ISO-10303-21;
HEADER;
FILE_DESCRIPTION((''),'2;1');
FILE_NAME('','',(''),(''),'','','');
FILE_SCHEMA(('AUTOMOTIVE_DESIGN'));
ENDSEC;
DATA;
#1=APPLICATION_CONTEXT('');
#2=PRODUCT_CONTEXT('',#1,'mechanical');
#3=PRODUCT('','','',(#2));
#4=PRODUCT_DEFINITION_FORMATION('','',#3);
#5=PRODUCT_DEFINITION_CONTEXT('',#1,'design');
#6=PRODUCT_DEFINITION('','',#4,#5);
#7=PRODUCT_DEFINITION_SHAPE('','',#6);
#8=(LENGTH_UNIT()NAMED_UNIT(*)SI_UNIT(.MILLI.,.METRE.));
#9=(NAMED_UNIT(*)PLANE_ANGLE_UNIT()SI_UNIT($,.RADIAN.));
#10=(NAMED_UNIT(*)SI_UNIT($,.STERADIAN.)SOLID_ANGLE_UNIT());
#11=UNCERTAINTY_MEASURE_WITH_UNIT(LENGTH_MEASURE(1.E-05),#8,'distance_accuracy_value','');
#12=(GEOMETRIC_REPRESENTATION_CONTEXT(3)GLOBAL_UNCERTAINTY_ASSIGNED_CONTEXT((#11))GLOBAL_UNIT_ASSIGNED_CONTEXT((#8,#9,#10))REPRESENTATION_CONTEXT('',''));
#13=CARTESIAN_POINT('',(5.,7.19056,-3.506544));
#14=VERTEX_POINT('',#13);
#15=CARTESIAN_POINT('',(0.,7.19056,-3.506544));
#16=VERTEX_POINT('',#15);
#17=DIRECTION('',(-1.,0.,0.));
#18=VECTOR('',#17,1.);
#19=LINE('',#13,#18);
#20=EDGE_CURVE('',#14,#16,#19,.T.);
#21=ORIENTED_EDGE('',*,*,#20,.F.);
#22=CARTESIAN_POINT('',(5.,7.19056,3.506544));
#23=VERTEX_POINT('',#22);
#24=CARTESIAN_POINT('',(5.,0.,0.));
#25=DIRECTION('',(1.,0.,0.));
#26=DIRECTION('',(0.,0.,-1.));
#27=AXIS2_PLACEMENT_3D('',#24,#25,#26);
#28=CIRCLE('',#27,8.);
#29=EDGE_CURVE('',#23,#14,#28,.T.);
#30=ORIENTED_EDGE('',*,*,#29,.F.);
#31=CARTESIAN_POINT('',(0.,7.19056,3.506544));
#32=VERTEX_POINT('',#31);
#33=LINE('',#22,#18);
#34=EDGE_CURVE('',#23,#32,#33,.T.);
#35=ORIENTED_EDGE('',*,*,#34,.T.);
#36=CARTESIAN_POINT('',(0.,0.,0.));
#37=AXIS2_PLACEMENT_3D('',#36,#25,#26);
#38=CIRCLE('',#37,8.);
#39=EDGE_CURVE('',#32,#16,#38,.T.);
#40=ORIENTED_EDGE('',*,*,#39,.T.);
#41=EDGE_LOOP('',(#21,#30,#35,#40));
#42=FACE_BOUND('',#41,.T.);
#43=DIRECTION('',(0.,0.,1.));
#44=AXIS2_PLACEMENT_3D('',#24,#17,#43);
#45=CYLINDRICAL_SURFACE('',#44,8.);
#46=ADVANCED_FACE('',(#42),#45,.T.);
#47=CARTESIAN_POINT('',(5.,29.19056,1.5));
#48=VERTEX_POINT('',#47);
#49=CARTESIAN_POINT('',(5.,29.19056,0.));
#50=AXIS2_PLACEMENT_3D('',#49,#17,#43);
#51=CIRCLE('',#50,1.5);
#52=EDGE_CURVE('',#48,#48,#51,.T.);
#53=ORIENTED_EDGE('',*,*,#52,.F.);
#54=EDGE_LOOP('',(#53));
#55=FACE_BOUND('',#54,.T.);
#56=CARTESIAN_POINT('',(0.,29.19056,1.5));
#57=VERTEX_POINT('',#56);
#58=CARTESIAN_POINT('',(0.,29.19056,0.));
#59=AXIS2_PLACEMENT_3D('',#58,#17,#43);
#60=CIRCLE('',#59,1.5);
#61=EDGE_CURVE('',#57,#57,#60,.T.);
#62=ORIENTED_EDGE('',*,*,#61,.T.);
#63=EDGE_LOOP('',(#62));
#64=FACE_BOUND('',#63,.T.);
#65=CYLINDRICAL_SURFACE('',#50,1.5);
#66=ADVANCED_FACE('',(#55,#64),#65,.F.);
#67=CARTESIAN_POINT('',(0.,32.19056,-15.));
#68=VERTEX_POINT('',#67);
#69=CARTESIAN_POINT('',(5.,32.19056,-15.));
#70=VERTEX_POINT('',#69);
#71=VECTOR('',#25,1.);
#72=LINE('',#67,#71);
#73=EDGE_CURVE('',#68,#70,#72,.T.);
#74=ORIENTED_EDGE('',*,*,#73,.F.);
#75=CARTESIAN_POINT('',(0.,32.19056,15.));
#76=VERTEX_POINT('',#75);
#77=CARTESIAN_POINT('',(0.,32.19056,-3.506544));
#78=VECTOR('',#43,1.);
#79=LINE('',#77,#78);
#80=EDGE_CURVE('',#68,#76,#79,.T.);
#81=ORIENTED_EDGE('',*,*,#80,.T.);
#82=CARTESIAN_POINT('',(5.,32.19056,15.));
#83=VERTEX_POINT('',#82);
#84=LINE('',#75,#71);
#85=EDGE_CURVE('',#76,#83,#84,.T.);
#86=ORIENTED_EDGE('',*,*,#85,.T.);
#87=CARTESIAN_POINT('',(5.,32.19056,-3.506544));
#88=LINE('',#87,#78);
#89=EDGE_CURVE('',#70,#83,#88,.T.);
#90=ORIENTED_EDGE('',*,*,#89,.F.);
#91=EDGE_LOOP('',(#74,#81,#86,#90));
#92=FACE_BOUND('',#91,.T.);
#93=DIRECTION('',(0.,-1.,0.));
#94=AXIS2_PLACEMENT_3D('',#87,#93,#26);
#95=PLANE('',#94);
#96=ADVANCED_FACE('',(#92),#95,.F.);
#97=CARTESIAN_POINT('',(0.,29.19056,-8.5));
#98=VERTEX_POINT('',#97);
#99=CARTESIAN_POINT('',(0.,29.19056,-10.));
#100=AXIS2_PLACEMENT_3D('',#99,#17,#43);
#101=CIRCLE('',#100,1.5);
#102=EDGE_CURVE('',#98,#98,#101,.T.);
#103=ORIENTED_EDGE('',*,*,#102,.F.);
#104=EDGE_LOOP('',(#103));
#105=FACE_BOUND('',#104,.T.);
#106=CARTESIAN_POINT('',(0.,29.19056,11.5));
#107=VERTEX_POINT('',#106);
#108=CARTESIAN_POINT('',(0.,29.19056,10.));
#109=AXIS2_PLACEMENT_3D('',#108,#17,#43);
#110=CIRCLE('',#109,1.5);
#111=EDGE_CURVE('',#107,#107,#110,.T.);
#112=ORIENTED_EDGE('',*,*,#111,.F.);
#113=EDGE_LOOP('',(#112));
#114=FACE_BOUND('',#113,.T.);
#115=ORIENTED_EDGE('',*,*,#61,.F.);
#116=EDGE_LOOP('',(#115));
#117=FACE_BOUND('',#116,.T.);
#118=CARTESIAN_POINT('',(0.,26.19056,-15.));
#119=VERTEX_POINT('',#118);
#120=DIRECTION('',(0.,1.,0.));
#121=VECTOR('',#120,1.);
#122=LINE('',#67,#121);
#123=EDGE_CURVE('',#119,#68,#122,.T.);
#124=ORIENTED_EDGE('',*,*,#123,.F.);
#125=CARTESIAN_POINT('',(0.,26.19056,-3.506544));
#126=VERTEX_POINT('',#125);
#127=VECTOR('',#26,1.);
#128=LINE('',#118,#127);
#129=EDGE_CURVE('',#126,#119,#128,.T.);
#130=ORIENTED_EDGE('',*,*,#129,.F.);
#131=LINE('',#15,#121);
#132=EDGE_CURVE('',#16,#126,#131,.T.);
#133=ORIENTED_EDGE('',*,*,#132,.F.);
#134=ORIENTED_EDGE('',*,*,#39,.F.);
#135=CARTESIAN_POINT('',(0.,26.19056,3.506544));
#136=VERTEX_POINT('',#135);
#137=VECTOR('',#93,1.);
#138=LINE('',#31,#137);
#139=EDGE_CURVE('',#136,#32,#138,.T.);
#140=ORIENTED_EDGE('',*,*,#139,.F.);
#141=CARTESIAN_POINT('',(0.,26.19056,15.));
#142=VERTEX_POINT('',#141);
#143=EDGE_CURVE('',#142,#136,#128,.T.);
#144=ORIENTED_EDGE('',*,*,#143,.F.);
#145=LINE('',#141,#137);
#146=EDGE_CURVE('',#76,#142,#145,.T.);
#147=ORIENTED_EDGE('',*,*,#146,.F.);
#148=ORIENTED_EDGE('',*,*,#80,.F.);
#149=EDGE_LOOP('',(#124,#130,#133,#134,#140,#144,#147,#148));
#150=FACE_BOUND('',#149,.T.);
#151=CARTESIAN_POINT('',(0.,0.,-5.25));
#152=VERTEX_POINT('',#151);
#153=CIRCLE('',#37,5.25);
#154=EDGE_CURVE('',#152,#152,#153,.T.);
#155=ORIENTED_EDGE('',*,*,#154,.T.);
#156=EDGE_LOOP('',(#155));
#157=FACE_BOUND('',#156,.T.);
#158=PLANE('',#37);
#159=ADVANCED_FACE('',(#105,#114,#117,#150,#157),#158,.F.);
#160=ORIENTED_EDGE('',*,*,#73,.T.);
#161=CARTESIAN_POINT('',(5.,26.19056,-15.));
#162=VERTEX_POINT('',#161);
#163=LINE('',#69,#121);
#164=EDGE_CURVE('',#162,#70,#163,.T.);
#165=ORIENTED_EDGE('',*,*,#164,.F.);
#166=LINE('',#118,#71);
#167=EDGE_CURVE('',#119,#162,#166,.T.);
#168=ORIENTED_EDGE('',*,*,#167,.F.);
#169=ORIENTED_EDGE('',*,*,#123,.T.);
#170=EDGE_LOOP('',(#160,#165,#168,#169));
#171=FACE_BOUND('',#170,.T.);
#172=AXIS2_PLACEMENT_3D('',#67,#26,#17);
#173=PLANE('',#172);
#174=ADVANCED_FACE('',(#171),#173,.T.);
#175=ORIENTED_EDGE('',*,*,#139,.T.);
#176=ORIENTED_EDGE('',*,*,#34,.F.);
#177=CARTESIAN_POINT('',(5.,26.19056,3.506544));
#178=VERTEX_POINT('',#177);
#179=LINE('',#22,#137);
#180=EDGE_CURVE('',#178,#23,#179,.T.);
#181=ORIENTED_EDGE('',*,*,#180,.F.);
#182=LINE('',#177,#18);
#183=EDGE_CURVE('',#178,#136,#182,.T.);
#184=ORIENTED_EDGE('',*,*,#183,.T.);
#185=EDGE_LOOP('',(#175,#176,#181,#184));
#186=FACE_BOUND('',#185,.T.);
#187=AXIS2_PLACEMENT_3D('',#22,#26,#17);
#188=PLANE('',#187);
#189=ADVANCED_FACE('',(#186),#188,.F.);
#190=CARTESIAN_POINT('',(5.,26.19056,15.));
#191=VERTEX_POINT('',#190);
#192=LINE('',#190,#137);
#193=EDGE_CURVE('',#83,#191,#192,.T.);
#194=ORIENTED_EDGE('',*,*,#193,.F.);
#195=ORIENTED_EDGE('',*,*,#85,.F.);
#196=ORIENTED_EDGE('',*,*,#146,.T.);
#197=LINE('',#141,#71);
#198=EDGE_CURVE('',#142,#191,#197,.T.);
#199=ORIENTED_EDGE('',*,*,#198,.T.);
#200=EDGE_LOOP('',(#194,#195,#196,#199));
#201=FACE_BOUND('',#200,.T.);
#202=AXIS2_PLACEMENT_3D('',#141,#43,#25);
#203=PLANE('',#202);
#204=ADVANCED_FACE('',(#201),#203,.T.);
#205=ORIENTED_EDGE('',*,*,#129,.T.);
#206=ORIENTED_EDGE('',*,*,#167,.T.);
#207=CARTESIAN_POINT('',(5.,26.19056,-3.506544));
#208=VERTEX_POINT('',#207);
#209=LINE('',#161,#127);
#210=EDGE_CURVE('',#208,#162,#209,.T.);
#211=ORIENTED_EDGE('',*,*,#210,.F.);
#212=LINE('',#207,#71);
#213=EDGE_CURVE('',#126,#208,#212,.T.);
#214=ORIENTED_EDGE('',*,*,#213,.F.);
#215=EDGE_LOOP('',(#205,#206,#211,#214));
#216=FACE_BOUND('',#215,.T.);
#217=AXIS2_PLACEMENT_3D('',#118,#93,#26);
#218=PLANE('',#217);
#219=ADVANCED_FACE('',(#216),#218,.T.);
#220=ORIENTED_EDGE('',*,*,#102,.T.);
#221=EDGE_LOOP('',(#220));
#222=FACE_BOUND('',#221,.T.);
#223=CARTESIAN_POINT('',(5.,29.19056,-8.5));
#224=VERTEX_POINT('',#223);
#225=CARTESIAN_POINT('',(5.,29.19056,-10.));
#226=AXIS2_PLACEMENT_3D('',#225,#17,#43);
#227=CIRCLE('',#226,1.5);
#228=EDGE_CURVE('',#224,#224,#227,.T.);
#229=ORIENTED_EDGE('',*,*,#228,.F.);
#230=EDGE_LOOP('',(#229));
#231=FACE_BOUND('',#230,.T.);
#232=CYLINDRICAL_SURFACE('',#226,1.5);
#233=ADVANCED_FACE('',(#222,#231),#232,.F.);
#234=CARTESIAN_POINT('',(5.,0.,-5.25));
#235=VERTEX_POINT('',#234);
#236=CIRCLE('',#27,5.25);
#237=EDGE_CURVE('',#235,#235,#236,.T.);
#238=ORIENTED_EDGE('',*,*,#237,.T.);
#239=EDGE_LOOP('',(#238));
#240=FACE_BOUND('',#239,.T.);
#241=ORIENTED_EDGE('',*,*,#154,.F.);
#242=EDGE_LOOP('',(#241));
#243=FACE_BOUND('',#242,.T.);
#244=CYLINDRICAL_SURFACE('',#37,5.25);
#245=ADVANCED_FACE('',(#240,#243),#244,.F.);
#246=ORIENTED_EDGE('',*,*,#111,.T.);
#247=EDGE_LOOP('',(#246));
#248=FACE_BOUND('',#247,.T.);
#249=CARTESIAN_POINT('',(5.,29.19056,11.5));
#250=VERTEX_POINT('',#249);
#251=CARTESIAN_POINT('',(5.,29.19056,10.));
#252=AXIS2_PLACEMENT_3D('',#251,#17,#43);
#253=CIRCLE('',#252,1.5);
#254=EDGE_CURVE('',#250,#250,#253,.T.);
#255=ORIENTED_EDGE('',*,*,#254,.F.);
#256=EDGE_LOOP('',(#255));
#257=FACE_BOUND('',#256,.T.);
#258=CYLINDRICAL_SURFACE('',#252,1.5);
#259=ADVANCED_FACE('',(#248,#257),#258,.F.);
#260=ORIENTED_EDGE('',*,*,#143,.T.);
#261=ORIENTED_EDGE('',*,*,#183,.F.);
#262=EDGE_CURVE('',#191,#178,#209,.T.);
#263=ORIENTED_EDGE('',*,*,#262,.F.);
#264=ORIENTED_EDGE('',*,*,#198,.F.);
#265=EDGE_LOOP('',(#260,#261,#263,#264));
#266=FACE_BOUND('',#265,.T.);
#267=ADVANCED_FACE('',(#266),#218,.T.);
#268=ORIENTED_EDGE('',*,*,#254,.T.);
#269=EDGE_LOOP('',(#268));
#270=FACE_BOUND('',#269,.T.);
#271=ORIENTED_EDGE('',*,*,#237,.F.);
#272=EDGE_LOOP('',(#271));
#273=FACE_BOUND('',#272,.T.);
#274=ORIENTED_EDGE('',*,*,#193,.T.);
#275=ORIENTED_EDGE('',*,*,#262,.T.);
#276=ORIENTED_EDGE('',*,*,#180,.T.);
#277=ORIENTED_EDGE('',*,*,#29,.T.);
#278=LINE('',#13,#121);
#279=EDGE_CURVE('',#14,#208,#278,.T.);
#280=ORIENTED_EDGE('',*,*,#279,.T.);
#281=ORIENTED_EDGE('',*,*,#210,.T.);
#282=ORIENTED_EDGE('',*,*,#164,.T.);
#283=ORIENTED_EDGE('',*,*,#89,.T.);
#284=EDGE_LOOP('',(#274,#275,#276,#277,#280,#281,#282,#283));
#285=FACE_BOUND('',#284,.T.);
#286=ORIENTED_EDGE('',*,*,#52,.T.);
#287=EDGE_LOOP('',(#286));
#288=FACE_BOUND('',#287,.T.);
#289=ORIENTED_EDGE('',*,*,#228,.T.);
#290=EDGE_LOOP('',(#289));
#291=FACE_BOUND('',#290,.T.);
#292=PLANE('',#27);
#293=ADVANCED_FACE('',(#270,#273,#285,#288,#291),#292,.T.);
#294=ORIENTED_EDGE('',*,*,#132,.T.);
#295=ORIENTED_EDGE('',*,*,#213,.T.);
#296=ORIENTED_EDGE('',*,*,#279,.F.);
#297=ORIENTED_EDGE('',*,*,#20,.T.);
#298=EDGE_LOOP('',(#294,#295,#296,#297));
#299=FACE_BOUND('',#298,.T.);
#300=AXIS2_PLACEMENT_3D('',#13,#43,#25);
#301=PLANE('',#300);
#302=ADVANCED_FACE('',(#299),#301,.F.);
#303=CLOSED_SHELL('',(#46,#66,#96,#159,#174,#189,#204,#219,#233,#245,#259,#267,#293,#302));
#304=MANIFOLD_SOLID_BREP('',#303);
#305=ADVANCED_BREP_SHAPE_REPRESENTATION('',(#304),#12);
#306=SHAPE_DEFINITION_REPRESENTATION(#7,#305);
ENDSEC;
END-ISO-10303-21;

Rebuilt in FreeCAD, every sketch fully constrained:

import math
import FreeCAD as App
import Part
import Sketcher

V = App.Vector
Q = App.Units.Quantity

doc = App.newDocument("Part")
params = doc.addObject("Spreadsheet::Sheet", "Params")
for row, (alias, value) in enumerate([
    ("sketch1_radius", "8 mm"),
    ("sketch1_width", "25 mm"),
    ("pad1_length", "5 mm"),
    ("sketch2_diameter", "10.5 mm"),
    ("pocket1_length", "5 mm"),
    ("sketch3_width", "6 mm"),
    ("sketch3_height", "30 mm"),
    ("pad2_length", "5 mm"),
    ("sketch4_diameter", "3 mm"),
], start=1):
    params.set(f"A{row}", alias)
    params.set(f"B{row}", "=" + value)
    params.setAlias(f"B{row}", alias)

body = doc.addObject("PartDesign::Body", "Body")

sketch1 = body.newObject("Sketcher::SketchObject", "Sketch")
sketch1.AttachmentSupport = (doc.getObject("YZ_Plane"), [""])
sketch1.MapMode = "FlatFace"
sketch1.addGeometry([
    Part.LineSegment(V(7, -4, 0), V(32, -4, 0)),
    Part.LineSegment(V(32, -4, 0), V(32, 4, 0)),
    Part.LineSegment(V(32, 4, 0), V(7, 4, 0)),
    Part.ArcOfCircle(Part.Circle(V(0, 0, 0), V(0, 0, 1), 8), math.radians(26), math.radians(334)),
], False)
sketch1.addConstraint([
    Sketcher.Constraint("Coincident", 0, 2, 1, 1),
    Sketcher.Constraint("Coincident", 1, 2, 2, 1),
    Sketcher.Constraint("Coincident", 2, 2, 3, 1),
    Sketcher.Constraint("Coincident", 3, 2, 0, 1),
    Sketcher.Constraint("Horizontal", 0),
    Sketcher.Constraint("Vertical", 1),
    Sketcher.Constraint("Horizontal", 2),
    Sketcher.Constraint("Coincident", 3, 3, -1, 1),
    Sketcher.Constraint("Vertical", 2, 2, 3, 2),
    Sketcher.Constraint("Radius", 3, Q("8 mm")),
    Sketcher.Constraint("DistanceX", 0, 1, 0, 2, Q("25 mm")),
    Sketcher.Constraint("DistanceY", 1, 1, 1, 2, Q("7.013089 mm")),
])
sketch1.setExpression("Constraints[9]", "Params.sketch1_radius")
sketch1.setExpression("Constraints[10]", "Params.sketch1_width")
pad1 = body.newObject("PartDesign::Pad", "Pad")
pad1.Profile = sketch1
pad1.setExpression("Length", "Params.pad1_length")

sketch2 = body.newObject("Sketcher::SketchObject", "Sketch001")
sketch2.AttachmentSupport = (doc.getObject("YZ_Plane"), [""])
sketch2.MapMode = "FlatFace"
sketch2.AttachmentOffset = App.Placement(V(0, 0, 5), App.Rotation())
sketch2.addGeometry(Part.Circle(V(0, 0, 0), V(0, 0, 1), 5), False)
sketch2.addConstraint([
    Sketcher.Constraint("Coincident", 0, 3, -1, 1),
    Sketcher.Constraint("Diameter", 0, Q("10.5 mm")),
])
sketch2.setExpression("Constraints[1]", "Params.sketch2_diameter")
pocket1 = body.newObject("PartDesign::Pocket", "Pocket")
pocket1.Profile = sketch2
pocket1.setExpression("Length", "Params.pocket1_length")

sketch3 = body.newObject("Sketcher::SketchObject", "Sketch002")
sketch3.AttachmentSupport = (doc.getObject("YZ_Plane"), [""])
sketch3.MapMode = "FlatFace"
sketch3.AttachmentOffset = App.Placement(V(0, 0, 5), App.Rotation())
sketch3.addGeometry([
    Part.LineSegment(V(32, -15, 0), V(32, 15, 0)),
    Part.LineSegment(V(32, 15, 0), V(26, 15, 0)),
    Part.LineSegment(V(26, 15, 0), V(26, -15, 0)),
    Part.LineSegment(V(26, -15, 0), V(32, -15, 0)),
], False)
sketch3.addConstraint([
    Sketcher.Constraint("Coincident", 0, 2, 1, 1),
    Sketcher.Constraint("Coincident", 1, 2, 2, 1),
    Sketcher.Constraint("Coincident", 2, 2, 3, 1),
    Sketcher.Constraint("Coincident", 3, 2, 0, 1),
    Sketcher.Constraint("Vertical", 0),
    Sketcher.Constraint("Horizontal", 1),
    Sketcher.Constraint("Vertical", 2),
    Sketcher.Constraint("Horizontal", 3),
    Sketcher.Constraint("DistanceX", 1, 2, 1, 1, Q("6 mm")),
    Sketcher.Constraint("DistanceY", 0, 1, 0, 2, Q("30 mm")),
    Sketcher.Constraint("DistanceY", -1, 1, 0, 2, Q("15 mm")),
    Sketcher.Constraint("DistanceX", -1, 1, 0, 2, Q("32.19056 mm")),
])
sketch3.setExpression("Constraints[8]", "Params.sketch3_width")
sketch3.setExpression("Constraints[9]", "Params.sketch3_height")
pad2 = body.newObject("PartDesign::Pad", "Pad001")
pad2.Profile = sketch3
pad2.setExpression("Length", "Params.pad2_length")
pad2.Reversed = True

sketch4 = body.newObject("Sketcher::SketchObject", "Sketch003")
sketch4.AttachmentSupport = (doc.getObject("YZ_Plane"), [""])
sketch4.MapMode = "FlatFace"
sketch4.addGeometry([
    Part.Circle(V(29.2, 0, 0), V(0, 0, 1), 1.5),
    Part.Circle(V(29.2, -10, 0), V(0, 0, 1), 1.5),
    Part.Circle(V(29.2, 10, 0), V(0, 0, 1), 1.5),
], False)
sketch4.addConstraint([
    Sketcher.Constraint("Equal", 0, 1),
    Sketcher.Constraint("Equal", 1, 2),
    Sketcher.Constraint("Symmetric", 1, 3, 2, 3, -1),
    Sketcher.Constraint("PointOnObject", 0, 3, -1),
    Sketcher.Constraint("Vertical", 0, 3, 1, 3),
    Sketcher.Constraint("Diameter", 0, Q("3 mm")),
    Sketcher.Constraint("DistanceY", 1, 3, -1, 1, Q("10 mm")),
    Sketcher.Constraint("DistanceX", -1, 1, 0, 3, Q("29.19056 mm")),
])
sketch4.setExpression("Constraints[5]", "Params.sketch4_diameter")
pocket2 = body.newObject("PartDesign::Pocket", "Pocket001")
pocket2.Profile = sketch4
pocket2.Type = "ThroughAll"
pocket2.Reversed = True

doc.recompute()
